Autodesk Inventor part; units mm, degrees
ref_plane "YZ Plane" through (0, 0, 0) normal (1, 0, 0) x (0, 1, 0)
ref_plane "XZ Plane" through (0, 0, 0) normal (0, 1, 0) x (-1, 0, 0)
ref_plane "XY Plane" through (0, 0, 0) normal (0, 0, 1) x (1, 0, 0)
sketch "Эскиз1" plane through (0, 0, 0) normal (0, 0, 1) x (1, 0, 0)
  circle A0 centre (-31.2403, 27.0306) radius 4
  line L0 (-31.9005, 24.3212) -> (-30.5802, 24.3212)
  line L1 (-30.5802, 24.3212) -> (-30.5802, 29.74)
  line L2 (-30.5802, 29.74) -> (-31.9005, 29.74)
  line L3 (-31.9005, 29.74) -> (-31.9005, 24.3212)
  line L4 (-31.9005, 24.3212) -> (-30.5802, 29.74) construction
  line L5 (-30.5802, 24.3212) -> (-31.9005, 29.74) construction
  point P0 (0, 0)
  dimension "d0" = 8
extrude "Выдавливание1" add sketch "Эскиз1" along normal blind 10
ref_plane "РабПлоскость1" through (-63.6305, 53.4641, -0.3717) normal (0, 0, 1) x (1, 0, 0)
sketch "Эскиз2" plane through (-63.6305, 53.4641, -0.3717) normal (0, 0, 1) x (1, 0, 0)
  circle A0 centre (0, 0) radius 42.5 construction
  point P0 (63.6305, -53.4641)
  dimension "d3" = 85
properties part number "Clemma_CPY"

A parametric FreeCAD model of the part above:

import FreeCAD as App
import Part
import Sketcher
from FreeCAD import Vector
Q = App.Units.Quantity


def add_polygon(sketch, points):
    """Adds a closed chain of lines whose ends are joined by coincident constraints."""
    first, n = sketch.GeometryCount, len(points)
    for a, b in zip(points, points[1:] + points[:1]):
        sketch.addGeometry(Part.LineSegment(App.Vector(*a, 0), App.Vector(*b, 0)), False)
    for i in range(n):
        sketch.addConstraint(Sketcher.Constraint("Coincident", first + i, 2, first + (i + 1) % n, 1))

doc = App.newDocument("Part")
params = doc.addObject("Spreadsheet::Sheet", "Params")
for row, (alias, value) in enumerate([
    ("sketch1_diameter", "8 mm"),
    ("pad1_length", "10 mm"),
], start=1):
    params.set(f"A{row}", alias)
    params.set(f"B{row}", "=" + value)
    params.setAlias(f"B{row}", alias)

body = doc.addObject("PartDesign::Body", "Body")

# Sketch on XY plane
sketch1 = body.newObject("Sketcher::SketchObject", "Sketch")
sketch1.AttachmentSupport = (doc.getObject("XY_Plane"), [""])
sketch1.MapMode = "FlatFace"
sketch1.addGeometry(Part.Circle(Vector(-31.2, 27, 0), Vector(0, 0, 1), 4), False)  # 0
add_polygon(sketch1, [(-30.6, 24.3), (-31.9, 24.3), (-31.9, 29.7), (-30.6, 29.7)])  # lines 1-4
sketch1.addConstraint(Sketcher.Constraint("Horizontal", 1))
sketch1.addConstraint(Sketcher.Constraint("Vertical", 2))
sketch1.addConstraint(Sketcher.Constraint("Horizontal", 3))
sketch1.addConstraint(Sketcher.Constraint("Vertical", 4))
sketch1.addConstraint(Sketcher.Constraint("Diameter", 0, Q("8 mm")))
sketch1.addConstraint(Sketcher.Constraint("DistanceY", -1, 1, 2, 2, Q("29.74 mm")))
sketch1.addConstraint(Sketcher.Constraint("DistanceX", 0, 3, 3, 2, Q("0.66 mm")))
sketch1.addConstraint(Sketcher.Constraint("DistanceX", 1, 2, 1, 1, Q("1.3203 mm")))
sketch1.addConstraint(Sketcher.Constraint("DistanceY", 2, 1, 2, 2, Q("5.4188 mm")))
sketch1.addConstraint(Sketcher.Constraint("DistanceX", 0, 3, -1, 1, Q("31.2403 mm")))
sketch1.addConstraint(Sketcher.Constraint("DistanceY", -1, 1, 0, 3, Q("27.0306 mm")))
sketch1.setExpression("Constraints[8]", "Params.sketch1_diameter")
pad1 = body.newObject("PartDesign::Pad", "Pad")
pad1.Profile = sketch1
pad1.setExpression("Length", "Params.pad1_length")

doc.recompute()
